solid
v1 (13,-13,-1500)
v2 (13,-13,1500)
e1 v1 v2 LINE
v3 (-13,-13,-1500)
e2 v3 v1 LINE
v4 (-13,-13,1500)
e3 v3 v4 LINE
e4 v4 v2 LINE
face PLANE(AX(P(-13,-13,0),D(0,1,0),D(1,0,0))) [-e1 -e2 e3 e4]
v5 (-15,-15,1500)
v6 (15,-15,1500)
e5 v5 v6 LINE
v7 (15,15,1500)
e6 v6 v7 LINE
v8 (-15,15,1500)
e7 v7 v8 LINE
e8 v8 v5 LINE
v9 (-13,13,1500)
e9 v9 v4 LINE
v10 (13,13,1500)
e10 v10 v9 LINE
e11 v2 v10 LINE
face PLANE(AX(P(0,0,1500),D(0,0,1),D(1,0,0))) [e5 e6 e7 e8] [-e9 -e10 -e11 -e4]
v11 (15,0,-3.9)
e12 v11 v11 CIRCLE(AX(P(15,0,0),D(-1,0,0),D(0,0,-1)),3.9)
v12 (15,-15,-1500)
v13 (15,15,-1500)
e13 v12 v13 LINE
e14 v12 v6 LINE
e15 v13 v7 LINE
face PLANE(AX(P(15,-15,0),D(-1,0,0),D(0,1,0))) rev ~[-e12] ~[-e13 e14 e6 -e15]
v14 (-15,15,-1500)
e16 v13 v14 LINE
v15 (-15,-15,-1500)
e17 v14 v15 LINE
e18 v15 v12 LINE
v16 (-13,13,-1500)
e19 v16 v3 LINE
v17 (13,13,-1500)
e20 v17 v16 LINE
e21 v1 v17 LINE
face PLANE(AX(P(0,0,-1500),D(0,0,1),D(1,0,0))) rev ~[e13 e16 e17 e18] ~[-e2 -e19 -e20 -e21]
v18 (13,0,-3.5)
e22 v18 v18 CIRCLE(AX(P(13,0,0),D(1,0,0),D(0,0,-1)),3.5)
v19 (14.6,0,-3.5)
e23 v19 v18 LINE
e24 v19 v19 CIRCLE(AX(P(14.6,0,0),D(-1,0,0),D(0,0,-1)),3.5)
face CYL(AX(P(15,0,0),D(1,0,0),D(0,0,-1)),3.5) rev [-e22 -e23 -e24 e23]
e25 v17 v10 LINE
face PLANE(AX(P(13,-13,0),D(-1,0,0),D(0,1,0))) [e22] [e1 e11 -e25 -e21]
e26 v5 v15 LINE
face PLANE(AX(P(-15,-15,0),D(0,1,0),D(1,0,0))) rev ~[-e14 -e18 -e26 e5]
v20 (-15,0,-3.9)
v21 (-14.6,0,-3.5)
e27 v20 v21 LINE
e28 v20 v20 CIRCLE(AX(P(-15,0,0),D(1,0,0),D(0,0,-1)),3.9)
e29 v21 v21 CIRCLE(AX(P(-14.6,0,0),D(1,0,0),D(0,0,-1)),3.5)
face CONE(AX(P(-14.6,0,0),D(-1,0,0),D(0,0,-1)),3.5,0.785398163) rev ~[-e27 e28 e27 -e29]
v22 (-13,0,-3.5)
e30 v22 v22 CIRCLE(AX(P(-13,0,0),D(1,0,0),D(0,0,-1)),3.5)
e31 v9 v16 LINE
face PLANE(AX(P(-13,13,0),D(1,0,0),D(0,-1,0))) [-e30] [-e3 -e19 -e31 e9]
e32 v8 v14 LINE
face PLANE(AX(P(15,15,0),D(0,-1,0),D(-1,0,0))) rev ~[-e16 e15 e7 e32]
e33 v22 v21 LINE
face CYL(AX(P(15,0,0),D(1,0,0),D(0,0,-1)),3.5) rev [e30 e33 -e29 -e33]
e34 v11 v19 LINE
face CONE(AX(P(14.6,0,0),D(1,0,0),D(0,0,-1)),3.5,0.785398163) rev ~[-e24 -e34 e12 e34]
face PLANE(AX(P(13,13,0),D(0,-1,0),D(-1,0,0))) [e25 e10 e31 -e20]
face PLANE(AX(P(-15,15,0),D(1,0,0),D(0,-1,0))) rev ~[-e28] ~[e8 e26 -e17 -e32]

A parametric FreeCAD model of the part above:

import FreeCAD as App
import Part
import Sketcher

V = App.Vector
Q = App.Units.Quantity

doc = App.newDocument("Part")
params = doc.addObject("Spreadsheet::Sheet", "Params")
for row, (alias, value) in enumerate([
    ("sketch1_width", "26 mm"),
    ("pad1_length", "3000 mm"),
    ("sketch2_diameter", "7 mm"),
    ("hole_diameter", "7 mm"),
], start=1):
    params.set(f"A{row}", alias)
    params.set(f"B{row}", "=" + value)
    params.setAlias(f"B{row}", alias)

body = doc.addObject("PartDesign::Body", "Body")

sketch1 = doc.addObject("Sketcher::SketchObject", "Sketch")
body.addObject(sketch1)
sketch1.AttachmentSupport = (doc.XY_Plane, [""])
sketch1.MapMode = "FlatFace"
sketch1.addGeometry(Part.LineSegment(V(-15, 15, 0), V(-15, -15, 0)), False)
sketch1.addGeometry(Part.LineSegment(V(-15, -15, 0), V(15, -15, 0)), False)
sketch1.addGeometry(Part.LineSegment(V(15, -15, 0), V(15, 15, 0)), False)
sketch1.addGeometry(Part.LineSegment(V(15, 15, 0), V(-15, 15, 0)), False)
sketch1.addGeometry(Part.LineSegment(V(13, -13, 0), V(-13, -13, 0)), False)
sketch1.addGeometry(Part.LineSegment(V(-13, -13, 0), V(-13, 13, 0)), False)
sketch1.addGeometry(Part.LineSegment(V(-13, 13, 0), V(13, 13, 0)), False)
sketch1.addGeometry(Part.LineSegment(V(13, 13, 0), V(13, -13, 0)), False)
sketch1.addConstraint(Sketcher.Constraint("Coincident", 0, 2, 1, 1))
sketch1.addConstraint(Sketcher.Constraint("Coincident", 1, 2, 2, 1))
sketch1.addConstraint(Sketcher.Constraint("Coincident", 2, 2, 3, 1))
sketch1.addConstraint(Sketcher.Constraint("Coincident", 3, 2, 0, 1))
sketch1.addConstraint(Sketcher.Constraint("Coincident", 4, 2, 5, 1))
sketch1.addConstraint(Sketcher.Constraint("Coincident", 5, 2, 6, 1))
sketch1.addConstraint(Sketcher.Constraint("Coincident", 6, 2, 7, 1))
sketch1.addConstraint(Sketcher.Constraint("Coincident", 7, 2, 4, 1))
sketch1.addConstraint(Sketcher.Constraint("Vertical", 0))
sketch1.addConstraint(Sketcher.Constraint("Horizontal", 1))
sketch1.addConstraint(Sketcher.Constraint("Vertical", 2))
sketch1.addConstraint(Sketcher.Constraint("Horizontal", 3))
sketch1.addConstraint(Sketcher.Constraint("Horizontal", 4))
sketch1.addConstraint(Sketcher.Constraint("Vertical", 5))
sketch1.addConstraint(Sketcher.Constraint("Horizontal", 6))
sketch1.addConstraint(Sketcher.Constraint("Vertical", 7))
sketch1.addConstraint(Sketcher.Constraint("Symmetric", 0, 2, 2, 2, -1, 1))
sketch1.addConstraint(Sketcher.Constraint("Symmetric", 4, 2, 6, 2, -1, 1))
sketch1.addConstraint(Sketcher.Constraint("Equal", 3, 0))
sketch1.addConstraint(Sketcher.Constraint("Equal", 6, 5))
sketch1.addConstraint(Sketcher.Constraint("DistanceX", 0, 2, -1, 1, Q("15 mm")))
sketch1.addConstraint(Sketcher.Constraint("DistanceX", 4, 2, 4, 1, Q("26 mm")))
sketch1.setExpression("Constraints[21]", "Params.sketch1_width")
pad1 = doc.addObject("PartDesign::Pad", "Pad")
body.addObject(pad1)
pad1.Profile = sketch1
pad1.setExpression("Length", "Params.pad1_length")
pad1.Midplane = True

sketch2 = doc.addObject("Sketcher::SketchObject", "Sketch001")
body.addObject(sketch2)
sketch2.AttachmentSupport = (doc.YZ_Plane, [""])
sketch2.MapMode = "FlatFace"
sketch2.AttachmentOffset = App.Placement(V(0, 0, 15), App.Rotation())
sketch2.addGeometry(Part.Circle(V(0, 0, 0), V(0, 0, 1), 3.5), False)
sketch2.addConstraint(Sketcher.Constraint("Coincident", 0, 3, -1, 1))
sketch2.addConstraint(Sketcher.Constraint("Diameter", 0, Q("7 mm")))
sketch2.setExpression("Constraints[1]", "Params.sketch2_diameter")
doc.recompute()
hole = doc.addObject("PartDesign::Hole", "Hole")
body.addObject(hole)
hole.Profile = sketch2
hole.ThreadType = "None"
hole.setExpression("Diameter", "Params.hole_diameter")
hole.DepthType = "ThroughAll"

doc.recompute()
